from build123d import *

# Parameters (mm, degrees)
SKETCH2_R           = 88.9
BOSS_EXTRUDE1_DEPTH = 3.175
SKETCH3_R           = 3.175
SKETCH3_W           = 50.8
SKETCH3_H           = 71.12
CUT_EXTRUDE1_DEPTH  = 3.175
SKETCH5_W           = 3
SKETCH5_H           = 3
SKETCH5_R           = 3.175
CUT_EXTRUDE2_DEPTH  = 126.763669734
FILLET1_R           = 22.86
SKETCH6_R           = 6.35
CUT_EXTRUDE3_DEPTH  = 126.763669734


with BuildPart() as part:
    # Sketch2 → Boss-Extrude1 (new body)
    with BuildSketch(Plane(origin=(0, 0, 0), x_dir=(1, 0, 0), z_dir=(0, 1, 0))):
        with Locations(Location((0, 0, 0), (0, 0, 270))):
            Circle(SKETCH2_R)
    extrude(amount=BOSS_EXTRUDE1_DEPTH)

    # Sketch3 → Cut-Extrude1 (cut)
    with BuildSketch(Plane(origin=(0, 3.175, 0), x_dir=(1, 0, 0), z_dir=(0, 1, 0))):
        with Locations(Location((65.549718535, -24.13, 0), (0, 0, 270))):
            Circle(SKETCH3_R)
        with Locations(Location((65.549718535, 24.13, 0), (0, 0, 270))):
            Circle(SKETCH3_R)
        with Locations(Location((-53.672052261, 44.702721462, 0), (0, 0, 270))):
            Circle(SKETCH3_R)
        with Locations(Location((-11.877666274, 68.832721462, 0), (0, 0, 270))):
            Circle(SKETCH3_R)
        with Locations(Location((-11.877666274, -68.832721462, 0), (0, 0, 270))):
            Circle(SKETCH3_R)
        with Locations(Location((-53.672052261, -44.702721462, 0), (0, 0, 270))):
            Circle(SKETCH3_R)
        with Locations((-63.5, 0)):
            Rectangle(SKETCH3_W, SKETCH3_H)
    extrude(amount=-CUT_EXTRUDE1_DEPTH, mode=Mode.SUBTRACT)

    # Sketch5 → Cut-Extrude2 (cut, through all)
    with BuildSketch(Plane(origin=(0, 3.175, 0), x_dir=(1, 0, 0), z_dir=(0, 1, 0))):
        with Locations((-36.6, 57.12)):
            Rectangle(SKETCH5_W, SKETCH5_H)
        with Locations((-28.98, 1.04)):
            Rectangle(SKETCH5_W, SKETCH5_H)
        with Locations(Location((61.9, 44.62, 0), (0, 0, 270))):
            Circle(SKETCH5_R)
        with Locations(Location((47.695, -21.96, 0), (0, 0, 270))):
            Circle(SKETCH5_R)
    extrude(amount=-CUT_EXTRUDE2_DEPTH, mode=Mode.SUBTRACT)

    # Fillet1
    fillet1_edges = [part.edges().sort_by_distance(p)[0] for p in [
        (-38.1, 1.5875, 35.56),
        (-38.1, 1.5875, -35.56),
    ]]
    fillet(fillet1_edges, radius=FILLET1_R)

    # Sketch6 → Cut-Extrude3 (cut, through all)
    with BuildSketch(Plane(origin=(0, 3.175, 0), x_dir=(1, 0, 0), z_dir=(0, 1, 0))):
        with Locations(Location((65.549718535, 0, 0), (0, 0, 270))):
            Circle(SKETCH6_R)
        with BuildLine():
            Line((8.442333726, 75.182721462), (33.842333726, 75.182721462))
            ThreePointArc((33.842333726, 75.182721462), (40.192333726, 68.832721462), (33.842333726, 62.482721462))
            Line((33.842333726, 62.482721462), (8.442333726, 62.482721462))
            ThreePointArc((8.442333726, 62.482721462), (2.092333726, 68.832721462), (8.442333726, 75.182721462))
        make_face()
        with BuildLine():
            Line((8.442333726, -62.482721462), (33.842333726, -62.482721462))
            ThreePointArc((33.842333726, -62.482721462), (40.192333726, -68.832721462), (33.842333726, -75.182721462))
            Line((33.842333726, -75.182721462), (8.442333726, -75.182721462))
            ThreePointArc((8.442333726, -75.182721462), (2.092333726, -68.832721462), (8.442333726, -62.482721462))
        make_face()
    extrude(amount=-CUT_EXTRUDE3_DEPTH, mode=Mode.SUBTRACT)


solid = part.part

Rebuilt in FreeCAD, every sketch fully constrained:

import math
import FreeCAD as App
import Part
import Sketcher

V = App.Vector
Q = App.Units.Quantity


def edges_at(feature, points):
    """Names of the edges that pass closest to the given points."""
    edges = feature.Shape.Edges
    near = lambda p: min(range(len(edges)), key=lambda i: edges[i].distToShape(Part.Vertex(*p))[0])
    return sorted({f"Edge{near(p) + 1}" for p in points})

doc = App.newDocument("Part")
body = doc.addObject("PartDesign::Body", "Body")

sketch1 = body.newObject("Sketcher::SketchObject", "Sketch")
sketch1.AttachmentSupport = (doc.getObject("XZ_Plane"), [""])
sketch1.MapMode = "FlatFace"
sketch1.addGeometry(Part.Circle(V(0, 0, 0), V(0, 0, 1), 88.9), False)
sketch1.addConstraint([
    Sketcher.Constraint("Coincident", 0, 3, -1, 1),
    Sketcher.Constraint("Diameter", 0, Q("7 in")),
])
pad1 = body.newObject("PartDesign::Pad", "Pad")
pad1.Profile = sketch1
pad1.Length = Q("0.125 in")
pad1.Reversed = True

sketch2 = body.newObject("Sketcher::SketchObject", "Sketch001")
sketch2.AttachmentSupport = (doc.getObject("XZ_Plane"), [""])
sketch2.MapMode = "FlatFace"
sketch2.AttachmentOffset = App.Placement(V(0, 0, -0.125 * 25.4), App.Rotation())
sketch2.addGeometry([
    Part.Circle(V(65.549719, 24.13, 0), V(0, 0, 1), 3.175),
    Part.Circle(V(65.549719, -24.13, 0), V(0, 0, 1), 3.175),
    Part.Circle(V(-53.672052, -44.702721, 0), V(0, 0, 1), 3.175),
    Part.Circle(V(-11.877666, -68.832721, 0), V(0, 0, 1), 3.175),
    Part.Circle(V(-11.877666, 68.832721, 0), V(0, 0, 1), 3.175),
    Part.Circle(V(-53.672052, 44.702721, 0), V(0, 0, 1), 3.175),
    Part.LineSegment(V(-88.9, -35.56, 0), V(-88.9, 35.56, 0)),
    Part.LineSegment(V(-88.9, 35.56, 0), V(-38.1, 35.56, 0)),
    Part.LineSegment(V(-38.1, 35.56, 0), V(-38.1, -35.56, 0)),
    Part.LineSegment(V(-38.1, -35.56, 0), V(-88.9, -35.56, 0)),
], False)
sketch2.addConstraint([
    Sketcher.Constraint("Coincident", 6, 2, 7, 1),
    Sketcher.Constraint("Coincident", 7, 2, 8, 1),
    Sketcher.Constraint("Coincident", 8, 2, 9, 1),
    Sketcher.Constraint("Coincident", 9, 2, 6, 1),
    Sketcher.Constraint("Vertical", 6),
    Sketcher.Constraint("Horizontal", 7),
    Sketcher.Constraint("Vertical", 8),
    Sketcher.Constraint("Horizontal", 9),
    Sketcher.Constraint("Equal", 0, 1),
    Sketcher.Constraint("Equal", 1, 2),
    Sketcher.Constraint("Equal", 2, 3),
    Sketcher.Constraint("Equal", 3, 4),
    Sketcher.Constraint("Equal", 4, 5),
    Sketcher.Constraint("Symmetric", 0, 3, 1, 3, -1),
    Sketcher.Constraint("Symmetric", 3, 3, 4, 3, -1),
    Sketcher.Constraint("Symmetric", 2, 3, 5, 3, -1),
    Sketcher.Constraint("Diameter", 0, Q("0.25 in")),
    Sketcher.Constraint("DistanceX", 7, 1, 7, 2, Q("2 in")),
    Sketcher.Constraint("DistanceY", 6, 1, 6, 2, Q("2.8 in")),
    Sketcher.Constraint("DistanceX", 6, 2, -1, 1, Q("3.5 in")),
    Sketcher.Constraint("DistanceY", -1, 1, 6, 2, Q("1.4 in")),
    Sketcher.Constraint("DistanceY", 1, 3, 0, 3, Q("1.9 in")),
    Sketcher.Constraint("DistanceY", 3, 3, 2, 3, Q("0.95 in")),
    Sketcher.Constraint("DistanceX", -1, 1, 0, 3, 65.549719),
    Sketcher.Constraint("DistanceY", 2, 3, -1, 1, 44.702721),
    Sketcher.Constraint("DistanceX", 2, 3, 1, 3, 119.221771),
    Sketcher.Constraint("DistanceX", 3, 3, -1, 1, 11.877666),
])
pocket1 = body.newObject("PartDesign::Pocket", "Pocket")
pocket1.Profile = sketch2
pocket1.Length = Q("0.125 in")
pocket1.Reversed = True

sketch3 = body.newObject("Sketcher::SketchObject", "Sketch002")
sketch3.AttachmentSupport = (doc.getObject("XZ_Plane"), [""])
sketch3.MapMode = "FlatFace"
sketch3.AttachmentOffset = App.Placement(V(0, 0, -0.125 * 25.4), App.Rotation())
sketch3.addGeometry([
    Part.LineSegment(V(-38.1, -58.62, 0), V(-38.1, -55.62, 0)),
    Part.LineSegment(V(-38.1, -55.62, 0), V(-35.1, -55.62, 0)),
    Part.LineSegment(V(-35.1, -55.62, 0), V(-35.1, -58.62, 0)),
    Part.LineSegment(V(-35.1, -58.62, 0), V(-38.1, -58.62, 0)),
    Part.LineSegment(V(-30.48, -2.54, 0), V(-30.48, 0.46, 0)),
    Part.LineSegment(V(-30.48, 0.46, 0), V(-27.48, 0.46, 0)),
    Part.LineSegment(V(-27.48, 0.46, 0), V(-27.48, -2.54, 0)),
    Part.LineSegment(V(-27.48, -2.54, 0), V(-30.48, -2.54, 0)),
    Part.Circle(V(61.9, -44.62, 0), V(0, 0, 1), 3.175),
    Part.Circle(V(47.695, 21.96, 0), V(0, 0, 1), 3.175),
], False)
sketch3.addConstraint([
    Sketcher.Constraint("Coincident", 0, 2, 1, 1),
    Sketcher.Constraint("Coincident", 1, 2, 2, 1),
    Sketcher.Constraint("Coincident", 2, 2, 3, 1),
    Sketcher.Constraint("Coincident", 3, 2, 0, 1),
    Sketcher.Constraint("Coincident", 4, 2, 5, 1),
    Sketcher.Constraint("Coincident", 5, 2, 6, 1),
    Sketcher.Constraint("Coincident", 6, 2, 7, 1),
    Sketcher.Constraint("Coincident", 7, 2, 4, 1),
    Sketcher.Constraint("Vertical", 0),
    Sketcher.Constraint("Horizontal", 1),
    Sketcher.Constraint("Vertical", 2),
    Sketcher.Constraint("Horizontal", 3),
    Sketcher.Constraint("Vertical", 4),
    Sketcher.Constraint("Horizontal", 5),
    Sketcher.Constraint("Vertical", 6),
    Sketcher.Constraint("Horizontal", 7),
    Sketcher.Constraint("Equal", 8, 9),
    Sketcher.Constraint("Equal", 3, 5),
    Sketcher.Constraint("Equal", 7, 0),
    Sketcher.Constraint("Equal", 2, 4),
    Sketcher.Constraint("Diameter", 8, Q("0.25 in")),
    Sketcher.Constraint("DistanceX", 0, 2, -1, 1, Q("1.5 in")),
    Sketcher.Constraint("DistanceX", 4, 2, -1, 1, Q("1.2 in")),
    Sketcher.Constraint("DistanceY", 6, 2, -1, 1, Q("0.1 in")),
    Sketcher.Constraint("DistanceX", 1, 1, 1, 2, 3.0),
    Sketcher.Constraint("DistanceX", -1, 1, 8, 3, 61.9),
    Sketcher.Constraint("DistanceY", 8, 3, -1, 1, 44.62),
    Sketcher.Constraint("DistanceX", -1, 1, 9, 3, 47.695),
    Sketcher.Constraint("DistanceY", -1, 1, 9, 3, 21.96),
    Sketcher.Constraint("DistanceY", 0, 2, -1, 1, 55.62),
])
pocket2 = body.newObject("PartDesign::Pocket", "Pocket001")
pocket2.Profile = sketch3
pocket2.Type = "ThroughAll"
pocket2.Reversed = True
doc.recompute()

fillet = body.newObject("PartDesign::Fillet", "Fillet")
fillet.Base = (pocket2, edges_at(pocket2, [(-38.1, 1.587, 35.56), (-38.1, 1.587, -35.56)]))
fillet.Radius = Q("0.9 in")

sketch4 = body.newObject("Sketcher::SketchObject", "Sketch003")
sketch4.AttachmentSupport = (doc.getObject("XZ_Plane"), [""])
sketch4.MapMode = "FlatFace"
sketch4.AttachmentOffset = App.Placement(V(0, 0, -0.125 * 25.4), App.Rotation())
sketch4.addGeometry([
    Part.Circle(V(65.549719, 0, 0), V(0, 0, 1), 6.35),
    Part.LineSegment(V(33.842334, -75.182721, 0), V(8.442334, -75.182721, 0)),
    Part.ArcOfCircle(Part.Circle(V(8.442334, -68.832721, 0), V(0, 0, 1), 6.35), math.radians(90), math.radians(270)),
    Part.LineSegment(V(8.442334, -62.482721, 0), V(33.842334, -62.482721, 0)),
    Part.ArcOfCircle(Part.Circle(V(33.842334, -68.832721, 0), V(0, 0, 1), 6.35), math.radians(-90), math.radians(90)),
    Part.LineSegment(V(33.842334, 62.482721, 0), V(8.442334, 62.482721, 0)),
    Part.ArcOfCircle(Part.Circle(V(8.442334, 68.832721, 0), V(0, 0, 1), 6.35), math.radians(90), math.radians(270)),
    Part.LineSegment(V(8.442334, 75.182721, 0), V(33.842334, 75.182721, 0)),
    Part.ArcOfCircle(Part.Circle(V(33.842334, 68.832721, 0), V(0, 0, 1), 6.35), math.radians(-90), math.radians(90)),
], False)
sketch4.addConstraint([
    Sketcher.Constraint("Tangent", 1, 2, 2, 2),
    Sketcher.Constraint("Tangent", 2, 1, 3, 1),
    Sketcher.Constraint("Tangent", 3, 2, 4, 2),
    Sketcher.Constraint("Tangent", 4, 1, 1, 1),
    Sketcher.Constraint("Tangent", 5, 2, 6, 2),
    Sketcher.Constraint("Tangent", 6, 1, 7, 1),
    Sketcher.Constraint("Tangent", 7, 2, 8, 2),
    Sketcher.Constraint("Tangent", 8, 1, 5, 1),
    Sketcher.Constraint("Horizontal", 1),
    Sketcher.Constraint("Horizontal", 3),
    Sketcher.Constraint("Horizontal", 5),
    Sketcher.Constraint("Horizontal", 7),
    Sketcher.Constraint("Equal", 0, 2),
    Sketcher.Constraint("Equal", 4, 6),
    Sketcher.Constraint("Symmetric", 2, 3, 6, 3, -1),
    Sketcher.Constraint("PointOnObject", 0, 3, -1),
    Sketcher.Constraint("Vertical", 4, 3, 8, 3),
    Sketcher.Constraint("Diameter", 0, Q("0.5 in")),
    Sketcher.Constraint("DistanceX", 1, 2, 1, 1, Q("1 in")),
    Sketcher.Constraint("DistanceX", -1, 1, 0, 3, 65.549719),
    Sketcher.Constraint("DistanceY", 2, 3, -1, 1, 68.832721),
    Sketcher.Constraint("DistanceX", -1, 1, 2, 3, 8.442334),
])
pocket3 = body.newObject("PartDesign::Pocket", "Pocket002")
pocket3.Profile = sketch4
pocket3.Type = "ThroughAll"
pocket3.Reversed = True

doc.recompute()
